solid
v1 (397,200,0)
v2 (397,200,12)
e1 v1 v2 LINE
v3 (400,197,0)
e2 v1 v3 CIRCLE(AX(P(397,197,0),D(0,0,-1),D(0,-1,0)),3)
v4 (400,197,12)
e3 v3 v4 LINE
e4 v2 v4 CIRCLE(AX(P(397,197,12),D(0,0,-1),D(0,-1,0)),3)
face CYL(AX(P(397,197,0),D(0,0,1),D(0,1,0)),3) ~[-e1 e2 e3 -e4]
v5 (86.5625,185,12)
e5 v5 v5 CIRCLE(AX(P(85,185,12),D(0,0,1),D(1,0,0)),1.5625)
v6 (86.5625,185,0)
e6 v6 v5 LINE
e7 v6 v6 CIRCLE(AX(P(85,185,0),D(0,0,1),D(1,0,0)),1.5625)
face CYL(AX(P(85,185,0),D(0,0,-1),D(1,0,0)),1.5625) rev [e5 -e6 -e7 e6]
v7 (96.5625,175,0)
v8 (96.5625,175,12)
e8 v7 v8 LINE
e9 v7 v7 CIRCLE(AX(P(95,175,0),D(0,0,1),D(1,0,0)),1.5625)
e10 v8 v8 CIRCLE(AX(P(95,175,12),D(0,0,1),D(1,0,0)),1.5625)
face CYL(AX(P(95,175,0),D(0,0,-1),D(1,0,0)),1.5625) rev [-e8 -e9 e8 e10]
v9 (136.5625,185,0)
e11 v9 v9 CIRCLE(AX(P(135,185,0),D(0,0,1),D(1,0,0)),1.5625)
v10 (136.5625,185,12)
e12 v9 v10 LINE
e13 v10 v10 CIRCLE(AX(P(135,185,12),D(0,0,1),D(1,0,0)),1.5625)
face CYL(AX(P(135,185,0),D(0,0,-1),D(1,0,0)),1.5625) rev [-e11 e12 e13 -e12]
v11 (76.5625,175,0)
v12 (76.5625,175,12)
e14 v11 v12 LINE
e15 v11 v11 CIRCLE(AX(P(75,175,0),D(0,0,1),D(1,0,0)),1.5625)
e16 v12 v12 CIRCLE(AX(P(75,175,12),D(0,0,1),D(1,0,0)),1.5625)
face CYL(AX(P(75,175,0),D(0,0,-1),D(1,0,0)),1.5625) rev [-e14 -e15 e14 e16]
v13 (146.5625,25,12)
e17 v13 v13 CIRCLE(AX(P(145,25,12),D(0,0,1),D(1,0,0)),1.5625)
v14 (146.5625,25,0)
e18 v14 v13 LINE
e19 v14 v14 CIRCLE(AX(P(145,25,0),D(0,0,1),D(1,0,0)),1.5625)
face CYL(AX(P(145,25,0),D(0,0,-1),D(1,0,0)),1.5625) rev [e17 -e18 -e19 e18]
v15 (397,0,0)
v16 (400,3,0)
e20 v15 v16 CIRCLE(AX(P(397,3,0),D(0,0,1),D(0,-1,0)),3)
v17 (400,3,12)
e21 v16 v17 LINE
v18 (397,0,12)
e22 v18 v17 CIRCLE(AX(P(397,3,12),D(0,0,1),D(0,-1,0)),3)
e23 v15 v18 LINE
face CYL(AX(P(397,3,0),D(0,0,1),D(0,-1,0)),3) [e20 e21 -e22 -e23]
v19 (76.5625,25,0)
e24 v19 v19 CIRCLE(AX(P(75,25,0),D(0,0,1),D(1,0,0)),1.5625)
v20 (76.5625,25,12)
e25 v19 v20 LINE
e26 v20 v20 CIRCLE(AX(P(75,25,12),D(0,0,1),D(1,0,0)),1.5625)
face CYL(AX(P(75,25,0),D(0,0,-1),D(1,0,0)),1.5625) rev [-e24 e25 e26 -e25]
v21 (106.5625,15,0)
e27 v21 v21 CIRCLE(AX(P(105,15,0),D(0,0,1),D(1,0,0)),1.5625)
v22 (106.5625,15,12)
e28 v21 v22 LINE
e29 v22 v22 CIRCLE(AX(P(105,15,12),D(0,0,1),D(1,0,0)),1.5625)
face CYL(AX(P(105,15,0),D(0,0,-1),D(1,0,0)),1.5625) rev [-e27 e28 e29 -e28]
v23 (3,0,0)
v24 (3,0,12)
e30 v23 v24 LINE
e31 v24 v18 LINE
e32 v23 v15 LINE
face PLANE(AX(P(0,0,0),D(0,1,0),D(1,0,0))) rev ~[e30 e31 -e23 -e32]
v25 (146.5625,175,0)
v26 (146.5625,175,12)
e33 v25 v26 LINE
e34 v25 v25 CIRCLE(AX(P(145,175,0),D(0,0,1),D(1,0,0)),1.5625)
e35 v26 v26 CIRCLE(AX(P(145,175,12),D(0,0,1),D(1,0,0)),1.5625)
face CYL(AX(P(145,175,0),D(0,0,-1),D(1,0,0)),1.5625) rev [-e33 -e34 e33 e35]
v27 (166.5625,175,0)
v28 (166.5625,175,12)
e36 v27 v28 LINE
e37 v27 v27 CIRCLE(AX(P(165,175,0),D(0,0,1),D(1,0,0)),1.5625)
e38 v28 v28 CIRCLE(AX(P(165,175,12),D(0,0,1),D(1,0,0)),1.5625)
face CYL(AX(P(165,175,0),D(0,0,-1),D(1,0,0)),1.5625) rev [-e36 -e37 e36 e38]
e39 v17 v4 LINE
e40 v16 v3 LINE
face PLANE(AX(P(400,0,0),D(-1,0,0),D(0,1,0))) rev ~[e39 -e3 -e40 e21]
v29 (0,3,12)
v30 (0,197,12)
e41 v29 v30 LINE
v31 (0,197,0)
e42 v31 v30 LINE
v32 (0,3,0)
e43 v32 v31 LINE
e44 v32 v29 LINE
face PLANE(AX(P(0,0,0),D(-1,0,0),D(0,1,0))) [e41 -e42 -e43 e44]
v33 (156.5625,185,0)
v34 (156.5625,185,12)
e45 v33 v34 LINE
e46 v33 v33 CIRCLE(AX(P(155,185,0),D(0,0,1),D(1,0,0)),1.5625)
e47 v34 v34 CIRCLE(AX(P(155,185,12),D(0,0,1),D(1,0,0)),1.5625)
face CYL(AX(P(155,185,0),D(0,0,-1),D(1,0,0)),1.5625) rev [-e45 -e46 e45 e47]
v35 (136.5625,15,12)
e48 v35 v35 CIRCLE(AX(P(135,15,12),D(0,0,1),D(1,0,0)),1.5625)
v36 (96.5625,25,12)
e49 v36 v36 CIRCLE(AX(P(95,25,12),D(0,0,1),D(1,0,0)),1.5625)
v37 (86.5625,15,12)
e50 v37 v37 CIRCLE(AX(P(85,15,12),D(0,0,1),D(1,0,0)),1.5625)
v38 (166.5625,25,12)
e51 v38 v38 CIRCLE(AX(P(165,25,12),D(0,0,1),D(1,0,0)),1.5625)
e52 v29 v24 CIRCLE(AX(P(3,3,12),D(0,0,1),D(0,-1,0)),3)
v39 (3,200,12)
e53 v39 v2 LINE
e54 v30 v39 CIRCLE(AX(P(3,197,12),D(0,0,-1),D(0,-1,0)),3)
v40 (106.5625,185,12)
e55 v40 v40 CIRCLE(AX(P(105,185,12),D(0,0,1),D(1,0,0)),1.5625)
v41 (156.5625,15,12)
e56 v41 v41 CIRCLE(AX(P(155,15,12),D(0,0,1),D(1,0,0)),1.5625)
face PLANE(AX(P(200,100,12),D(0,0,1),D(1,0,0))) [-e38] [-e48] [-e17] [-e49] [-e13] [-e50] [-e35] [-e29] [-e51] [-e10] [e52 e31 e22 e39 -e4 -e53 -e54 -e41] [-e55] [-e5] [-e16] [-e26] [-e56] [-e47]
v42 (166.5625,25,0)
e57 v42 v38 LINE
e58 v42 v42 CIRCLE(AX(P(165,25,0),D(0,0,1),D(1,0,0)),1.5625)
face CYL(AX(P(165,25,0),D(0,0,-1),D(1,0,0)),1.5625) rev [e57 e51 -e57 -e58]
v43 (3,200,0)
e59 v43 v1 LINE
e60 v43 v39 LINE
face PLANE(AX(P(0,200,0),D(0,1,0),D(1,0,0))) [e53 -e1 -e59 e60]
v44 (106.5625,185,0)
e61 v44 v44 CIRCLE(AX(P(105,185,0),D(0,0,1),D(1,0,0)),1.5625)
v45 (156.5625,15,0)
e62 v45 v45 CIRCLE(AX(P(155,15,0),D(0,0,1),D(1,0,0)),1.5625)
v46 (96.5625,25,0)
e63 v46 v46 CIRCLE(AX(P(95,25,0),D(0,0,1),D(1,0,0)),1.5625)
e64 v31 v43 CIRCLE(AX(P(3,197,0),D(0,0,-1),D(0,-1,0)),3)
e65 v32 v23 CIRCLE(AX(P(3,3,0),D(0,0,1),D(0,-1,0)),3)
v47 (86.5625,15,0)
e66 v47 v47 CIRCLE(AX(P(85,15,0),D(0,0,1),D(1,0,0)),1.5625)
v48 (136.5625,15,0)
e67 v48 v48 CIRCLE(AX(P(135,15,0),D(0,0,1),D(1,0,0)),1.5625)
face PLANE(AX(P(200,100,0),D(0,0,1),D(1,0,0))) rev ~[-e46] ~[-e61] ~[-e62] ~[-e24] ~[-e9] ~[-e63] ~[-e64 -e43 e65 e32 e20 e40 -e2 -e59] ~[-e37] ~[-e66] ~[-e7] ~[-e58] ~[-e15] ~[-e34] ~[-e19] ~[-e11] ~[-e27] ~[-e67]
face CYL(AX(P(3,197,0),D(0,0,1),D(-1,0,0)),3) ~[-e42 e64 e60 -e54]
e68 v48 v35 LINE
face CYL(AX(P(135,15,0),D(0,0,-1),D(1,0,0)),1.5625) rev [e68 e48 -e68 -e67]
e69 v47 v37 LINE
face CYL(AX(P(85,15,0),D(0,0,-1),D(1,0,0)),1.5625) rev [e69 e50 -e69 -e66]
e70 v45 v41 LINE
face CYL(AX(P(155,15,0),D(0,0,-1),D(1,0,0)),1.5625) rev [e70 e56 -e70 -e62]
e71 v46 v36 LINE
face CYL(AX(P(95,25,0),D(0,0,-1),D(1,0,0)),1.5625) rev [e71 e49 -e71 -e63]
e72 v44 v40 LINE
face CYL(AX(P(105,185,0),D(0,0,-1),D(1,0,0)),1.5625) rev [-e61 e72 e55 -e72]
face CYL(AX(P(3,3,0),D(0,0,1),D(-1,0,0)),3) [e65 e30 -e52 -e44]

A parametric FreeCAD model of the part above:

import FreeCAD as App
import Part
import Sketcher
from FreeCAD import Vector
Q = App.Units.Quantity


def edges_at(feature, points):
    """Names of the edges that pass closest to the given points."""
    edges = feature.Shape.Edges
    near = lambda p: min(range(len(edges)), key=lambda i: edges[i].distToShape(Part.Vertex(*p))[0])
    return sorted({f"Edge{near(p) + 1}" for p in points})


def add_polygon(sketch, points):
    """Adds a closed chain of lines whose ends are joined by coincident constraints."""
    first, n = sketch.GeometryCount, len(points)
    for a, b in zip(points, points[1:] + points[:1]):
        sketch.addGeometry(Part.LineSegment(App.Vector(*a, 0), App.Vector(*b, 0)), False)
    for i in range(n):
        sketch.addConstraint(Sketcher.Constraint("Coincident", first + i, 2, first + (i + 1) % n, 1))

doc = App.newDocument("Part")
body = doc.addObject("PartDesign::Body", "Body")

# Sketch on XY plane
sketch1 = doc.addObject("Sketcher::SketchObject", "Sketch")
body.addObject(sketch1)
sketch1.AttachmentSupport = (doc.XY_Plane, [""])
sketch1.MapMode = "FlatFace"
add_polygon(sketch1, [(0, 200), (0, 0), (400, 0), (400, 200)])  # lines 0-3
sketch1.addGeometry(Part.Circle(Vector(85, 15, 0), Vector(0, 0, 1), 1.6), False)  # 4
sketch1.addGeometry(Part.Circle(Vector(75, 25, 0), Vector(0, 0, 1), 1.6), False)  # 5
sketch1.addGeometry(Part.Circle(Vector(95, 25, 0), Vector(0, 0, 1), 1.6), False)  # 6
sketch1.addGeometry(Part.Circle(Vector(105, 15, 0), Vector(0, 0, 1), 1.6), False)  # 7
sketch1.addGeometry(Part.Circle(Vector(135, 15, 0), Vector(0, 0, 1), 1.6), False)  # 8
sketch1.addGeometry(Part.Circle(Vector(145, 25, 0), Vector(0, 0, 1), 1.6), False)  # 9
sketch1.addGeometry(Part.Circle(Vector(155, 15, 0), Vector(0, 0, 1), 1.6), False)  # 10
sketch1.addGeometry(Part.Circle(Vector(165, 25, 0), Vector(0, 0, 1), 1.6), False)  # 11
sketch1.addGeometry(Part.Circle(Vector(75, 175, 0), Vector(0, 0, 1), 1.6), False)  # 12
sketch1.addGeometry(Part.Circle(Vector(85, 185, 0), Vector(0, 0, 1), 1.6), False)  # 13
sketch1.addGeometry(Part.Circle(Vector(95, 175, 0), Vector(0, 0, 1), 1.6), False)  # 14
sketch1.addGeometry(Part.Circle(Vector(105, 185, 0), Vector(0, 0, 1), 1.6), False)  # 15
sketch1.addGeometry(Part.Circle(Vector(135, 185, 0), Vector(0, 0, 1), 1.6), False)  # 16
sketch1.addGeometry(Part.Circle(Vector(145, 175, 0), Vector(0, 0, 1), 1.6), False)  # 17
sketch1.addGeometry(Part.Circle(Vector(165, 175, 0), Vector(0, 0, 1), 1.6), False)  # 18
sketch1.addGeometry(Part.Circle(Vector(155, 185, 0), Vector(0, 0, 1), 1.6), False)  # 19
sketch1.addConstraint(Sketcher.Constraint("Vertical", 0))
sketch1.addConstraint(Sketcher.Constraint("Horizontal", 1))
sketch1.addConstraint(Sketcher.Constraint("Vertical", 2))
sketch1.addConstraint(Sketcher.Constraint("Horizontal", 3))
sketch1.addConstraint(Sketcher.Constraint("Coincident", 0, 2, -1, 1))
sketch1.addConstraint(Sketcher.Constraint("Equal", 4, 5))
sketch1.addConstraint(Sketcher.Constraint("Equal", 5, 6))
sketch1.addConstraint(Sketcher.Constraint("Equal", 6, 7))
sketch1.addConstraint(Sketcher.Constraint("Equal", 7, 8))
sketch1.addConstraint(Sketcher.Constraint("Equal", 8, 9))
sketch1.addConstraint(Sketcher.Constraint("Equal", 9, 10))
sketch1.addConstraint(Sketcher.Constraint("Equal", 10, 11))
sketch1.addConstraint(Sketcher.Constraint("Equal", 11, 12))
sketch1.addConstraint(Sketcher.Constraint("Equal", 12, 13))
sketch1.addConstraint(Sketcher.Constraint("Equal", 13, 14))
sketch1.addConstraint(Sketcher.Constraint("Equal", 14, 15))
sketch1.addConstraint(Sketcher.Constraint("Equal", 15, 16))
sketch1.addConstraint(Sketcher.Constraint("Equal", 16, 17))
sketch1.addConstraint(Sketcher.Constraint("Equal", 17, 18))
sketch1.addConstraint(Sketcher.Constraint("Equal", 18, 19))
sketch1.addConstraint(Sketcher.Constraint("Horizontal", 5, 3, 6, 3))
sketch1.addConstraint(Sketcher.Constraint("Horizontal", 4, 3, 7, 3))
sketch1.addConstraint(Sketcher.Constraint("Horizontal", 7, 3, 8, 3))
sketch1.addConstraint(Sketcher.Constraint("Horizontal", 6, 3, 9, 3))
sketch1.addConstraint(Sketcher.Constraint("Horizontal", 8, 3, 10, 3))
sketch1.addConstraint(Sketcher.Constraint("Horizontal", 9, 3, 11, 3))
sketch1.addConstraint(Sketcher.Constraint("Horizontal", 12, 3, 14, 3))
sketch1.addConstraint(Sketcher.Constraint("Horizontal", 13, 3, 15, 3))
sketch1.addConstraint(Sketcher.Constraint("Horizontal", 15, 3, 16, 3))
sketch1.addConstraint(Sketcher.Constraint("Horizontal", 14, 3, 17, 3))
sketch1.addConstraint(Sketcher.Constraint("Horizontal", 17, 3, 18, 3))
sketch1.addConstraint(Sketcher.Constraint("Horizontal", 16, 3, 19, 3))
sketch1.addConstraint(Sketcher.Constraint("Vertical", 5, 3, 12, 3))
sketch1.addConstraint(Sketcher.Constraint("Vertical", 4, 3, 13, 3))
sketch1.addConstraint(Sketcher.Constraint("Vertical", 6, 3, 14, 3))
sketch1.addConstraint(Sketcher.Constraint("Vertical", 7, 3, 15, 3))
sketch1.addConstraint(Sketcher.Constraint("Vertical", 8, 3, 16, 3))
sketch1.addConstraint(Sketcher.Constraint("Vertical", 9, 3, 17, 3))
sketch1.addConstraint(Sketcher.Constraint("Vertical", 11, 3, 18, 3))
sketch1.addConstraint(Sketcher.Constraint("Vertical", 10, 3, 19, 3))
sketch1.addConstraint(Sketcher.Constraint("DistanceX", 1, 1, 1, 2, Q("400 mm")))
sketch1.addConstraint(Sketcher.Constraint("DistanceY", 0, 2, 0, 1, Q("200 mm")))
sketch1.addConstraint(Sketcher.Constraint("Diameter", 4, Q("3.125 mm")))
sketch1.addConstraint(Sketcher.Constraint("DistanceX", -1, 1, 4, 3, Q("85 mm")))
sketch1.addConstraint(Sketcher.Constraint("DistanceY", -1, 1, 4, 3, Q("15 mm")))
sketch1.addConstraint(Sketcher.Constraint("DistanceX", -1, 1, 5, 3, Q("75 mm")))
sketch1.addConstraint(Sketcher.Constraint("DistanceY", -1, 1, 5, 3, Q("25 mm")))
sketch1.addConstraint(Sketcher.Constraint("DistanceX", -1, 1, 6, 3, Q("95 mm")))
sketch1.addConstraint(Sketcher.Constraint("DistanceX", -1, 1, 7, 3, Q("105 mm")))
sketch1.addConstraint(Sketcher.Constraint("DistanceX", -1, 1, 8, 3, Q("135 mm")))
sketch1.addConstraint(Sketcher.Constraint("DistanceX", -1, 1, 9, 3, Q("145 mm")))
sketch1.addConstraint(Sketcher.Constraint("DistanceX", -1, 1, 10, 3, Q("155 mm")))
sketch1.addConstraint(Sketcher.Constraint("DistanceX", -1, 1, 11, 3, Q("165 mm")))
sketch1.addConstraint(Sketcher.Constraint("DistanceY", -1, 1, 12, 3, Q("175 mm")))
sketch1.addConstraint(Sketcher.Constraint("DistanceY", -1, 1, 13, 3, Q("185 mm")))
pad1 = doc.addObject("PartDesign::Pad", "Pad")
body.addObject(pad1)
pad1.Profile = sketch1
pad1.Length = 12
doc.recompute()

fillet = doc.addObject("PartDesign::Fillet", "Fillet")
body.addObject(fillet)
fillet.Base = (pad1, edges_at(pad1, [
    (0, 0, 6),
    (400, 0, 6),
    (400, 200, 6),
    (0, 200, 6),
]))
fillet.Radius = 3

doc.recompute()
